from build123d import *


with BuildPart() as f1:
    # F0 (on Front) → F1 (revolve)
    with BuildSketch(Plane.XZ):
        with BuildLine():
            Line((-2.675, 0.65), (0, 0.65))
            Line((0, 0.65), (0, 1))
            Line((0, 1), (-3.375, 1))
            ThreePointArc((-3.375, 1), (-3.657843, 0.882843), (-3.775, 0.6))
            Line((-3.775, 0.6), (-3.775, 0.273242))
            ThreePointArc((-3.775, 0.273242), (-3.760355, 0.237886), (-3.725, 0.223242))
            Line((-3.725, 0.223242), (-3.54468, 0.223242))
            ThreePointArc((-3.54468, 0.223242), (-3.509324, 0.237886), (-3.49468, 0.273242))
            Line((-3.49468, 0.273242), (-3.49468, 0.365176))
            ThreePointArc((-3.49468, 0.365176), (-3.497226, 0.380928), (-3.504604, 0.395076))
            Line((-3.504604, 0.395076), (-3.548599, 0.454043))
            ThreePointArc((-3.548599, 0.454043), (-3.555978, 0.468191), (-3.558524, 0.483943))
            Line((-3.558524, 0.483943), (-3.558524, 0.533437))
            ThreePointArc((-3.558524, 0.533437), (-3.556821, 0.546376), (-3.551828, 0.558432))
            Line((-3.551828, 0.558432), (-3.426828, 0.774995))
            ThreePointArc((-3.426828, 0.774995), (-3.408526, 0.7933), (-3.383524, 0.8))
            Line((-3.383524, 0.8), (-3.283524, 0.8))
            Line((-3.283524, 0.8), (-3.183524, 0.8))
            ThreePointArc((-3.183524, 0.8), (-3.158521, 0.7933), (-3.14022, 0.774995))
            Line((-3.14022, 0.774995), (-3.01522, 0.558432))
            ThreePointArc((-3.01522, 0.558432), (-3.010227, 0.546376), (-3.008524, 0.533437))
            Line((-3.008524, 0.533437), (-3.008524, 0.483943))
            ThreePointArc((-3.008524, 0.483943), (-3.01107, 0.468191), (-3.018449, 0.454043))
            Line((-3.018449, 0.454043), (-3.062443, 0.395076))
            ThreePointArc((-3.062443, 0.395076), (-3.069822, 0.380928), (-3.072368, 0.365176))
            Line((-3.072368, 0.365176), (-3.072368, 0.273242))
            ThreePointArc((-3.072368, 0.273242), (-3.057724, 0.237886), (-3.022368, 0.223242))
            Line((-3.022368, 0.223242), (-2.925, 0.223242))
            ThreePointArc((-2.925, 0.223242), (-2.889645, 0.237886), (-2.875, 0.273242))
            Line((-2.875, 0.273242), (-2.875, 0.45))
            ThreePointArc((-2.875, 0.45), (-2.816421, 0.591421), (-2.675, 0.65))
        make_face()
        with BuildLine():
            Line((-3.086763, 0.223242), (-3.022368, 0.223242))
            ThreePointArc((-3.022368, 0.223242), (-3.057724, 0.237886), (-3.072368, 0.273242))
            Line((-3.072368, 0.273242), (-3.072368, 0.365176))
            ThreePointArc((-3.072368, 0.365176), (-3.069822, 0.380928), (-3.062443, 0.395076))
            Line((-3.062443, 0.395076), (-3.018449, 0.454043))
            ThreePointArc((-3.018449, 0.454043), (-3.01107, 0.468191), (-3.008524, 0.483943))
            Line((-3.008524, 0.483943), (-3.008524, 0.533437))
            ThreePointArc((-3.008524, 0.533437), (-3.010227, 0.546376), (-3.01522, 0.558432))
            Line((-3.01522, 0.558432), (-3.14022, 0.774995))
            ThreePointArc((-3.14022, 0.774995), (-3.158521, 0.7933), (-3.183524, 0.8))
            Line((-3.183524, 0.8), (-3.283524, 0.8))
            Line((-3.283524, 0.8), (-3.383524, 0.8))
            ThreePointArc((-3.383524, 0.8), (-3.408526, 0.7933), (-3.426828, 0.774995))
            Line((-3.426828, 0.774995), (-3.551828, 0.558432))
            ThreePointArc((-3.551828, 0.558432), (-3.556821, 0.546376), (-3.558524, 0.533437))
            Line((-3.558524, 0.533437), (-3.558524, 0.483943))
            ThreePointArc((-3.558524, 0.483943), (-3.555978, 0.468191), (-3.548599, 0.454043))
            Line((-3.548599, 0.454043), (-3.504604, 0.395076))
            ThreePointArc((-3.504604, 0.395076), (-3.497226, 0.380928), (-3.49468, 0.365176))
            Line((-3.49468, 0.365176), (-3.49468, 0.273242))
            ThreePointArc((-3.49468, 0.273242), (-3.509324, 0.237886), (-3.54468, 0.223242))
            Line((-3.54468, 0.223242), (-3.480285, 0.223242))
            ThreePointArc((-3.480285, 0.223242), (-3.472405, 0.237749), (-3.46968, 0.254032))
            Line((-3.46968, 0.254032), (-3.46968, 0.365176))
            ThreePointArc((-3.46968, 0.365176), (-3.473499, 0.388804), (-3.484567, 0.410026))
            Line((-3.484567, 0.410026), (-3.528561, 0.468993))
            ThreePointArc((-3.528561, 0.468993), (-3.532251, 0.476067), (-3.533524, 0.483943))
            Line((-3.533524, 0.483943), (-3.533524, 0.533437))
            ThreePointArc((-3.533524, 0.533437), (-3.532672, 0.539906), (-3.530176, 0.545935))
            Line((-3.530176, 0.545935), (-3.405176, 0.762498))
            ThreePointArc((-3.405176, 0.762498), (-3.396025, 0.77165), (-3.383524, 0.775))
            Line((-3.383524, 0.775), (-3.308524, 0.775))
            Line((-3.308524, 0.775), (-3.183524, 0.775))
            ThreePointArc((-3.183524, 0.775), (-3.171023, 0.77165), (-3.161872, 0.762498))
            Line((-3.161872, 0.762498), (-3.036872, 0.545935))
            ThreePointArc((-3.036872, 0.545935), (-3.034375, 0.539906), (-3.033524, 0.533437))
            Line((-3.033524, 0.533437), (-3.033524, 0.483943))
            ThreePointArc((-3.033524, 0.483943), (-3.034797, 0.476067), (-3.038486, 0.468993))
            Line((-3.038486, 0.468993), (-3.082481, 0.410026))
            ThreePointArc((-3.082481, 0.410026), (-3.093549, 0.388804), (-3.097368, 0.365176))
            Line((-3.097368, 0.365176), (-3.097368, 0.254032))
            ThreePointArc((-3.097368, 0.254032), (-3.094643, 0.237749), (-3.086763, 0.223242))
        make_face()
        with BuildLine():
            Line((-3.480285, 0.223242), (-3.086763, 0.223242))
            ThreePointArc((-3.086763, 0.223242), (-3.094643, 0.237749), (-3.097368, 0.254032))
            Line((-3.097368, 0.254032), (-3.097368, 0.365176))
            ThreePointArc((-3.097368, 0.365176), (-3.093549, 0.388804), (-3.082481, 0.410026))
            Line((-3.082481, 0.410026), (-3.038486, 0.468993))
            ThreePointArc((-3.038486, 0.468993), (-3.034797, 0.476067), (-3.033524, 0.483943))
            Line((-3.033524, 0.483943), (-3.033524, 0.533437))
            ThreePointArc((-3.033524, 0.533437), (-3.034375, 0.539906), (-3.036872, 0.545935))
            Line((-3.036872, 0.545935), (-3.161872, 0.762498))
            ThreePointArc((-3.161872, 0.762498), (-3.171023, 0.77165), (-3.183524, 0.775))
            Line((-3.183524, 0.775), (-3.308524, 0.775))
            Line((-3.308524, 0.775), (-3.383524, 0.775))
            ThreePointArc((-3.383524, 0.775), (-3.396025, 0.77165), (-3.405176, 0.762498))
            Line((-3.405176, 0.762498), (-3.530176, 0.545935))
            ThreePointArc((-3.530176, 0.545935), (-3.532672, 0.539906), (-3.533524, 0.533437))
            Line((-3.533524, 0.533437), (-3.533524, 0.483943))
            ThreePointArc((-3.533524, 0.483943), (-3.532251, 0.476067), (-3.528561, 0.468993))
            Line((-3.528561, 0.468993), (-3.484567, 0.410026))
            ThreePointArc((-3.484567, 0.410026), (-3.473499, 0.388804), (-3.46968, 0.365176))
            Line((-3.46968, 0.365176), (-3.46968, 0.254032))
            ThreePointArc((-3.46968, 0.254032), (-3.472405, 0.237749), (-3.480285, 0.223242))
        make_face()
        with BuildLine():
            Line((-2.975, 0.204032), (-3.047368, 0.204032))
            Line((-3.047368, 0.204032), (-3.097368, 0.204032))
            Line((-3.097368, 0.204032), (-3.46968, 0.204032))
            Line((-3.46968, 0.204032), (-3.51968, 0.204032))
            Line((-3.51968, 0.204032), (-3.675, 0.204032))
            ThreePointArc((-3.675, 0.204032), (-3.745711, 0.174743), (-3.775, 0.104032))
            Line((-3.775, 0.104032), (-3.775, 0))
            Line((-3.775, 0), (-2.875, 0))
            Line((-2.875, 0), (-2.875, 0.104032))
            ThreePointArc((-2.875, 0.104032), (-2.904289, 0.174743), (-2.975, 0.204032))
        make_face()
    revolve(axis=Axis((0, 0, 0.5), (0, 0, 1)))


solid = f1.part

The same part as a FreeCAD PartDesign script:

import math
import FreeCAD as App
import Part
import Sketcher

doc = App.newDocument("Part")
body = doc.addObject("PartDesign::Body", "Body")
body.AllowCompound = True

sketch1 = doc.addObject("Sketcher::SketchObject", "Sketch")
body.addObject(sketch1)
sketch1.AttachmentSupport = (doc.XZ_Plane, [""])
sketch1.MapMode = "FlatFace"
sketch1.addGeometry([
    Part.LineSegment(App.Vector(-2.675, 0.65, 0), App.Vector(0, 0.65, 0)),
    Part.LineSegment(App.Vector(0, 0.65, 0), App.Vector(0, 1, 0)),
    Part.LineSegment(App.Vector(0, 1, 0), App.Vector(-3.375, 1, 0)),
    Part.ArcOfCircle(Part.Circle(App.Vector(-3.375, 0.6, 0), App.Vector(0, 0, 1), 0.4), math.radians(90), math.radians(180)),
    Part.LineSegment(App.Vector(-3.775, 0.6, 0), App.Vector(-3.775, 0.273, 0)),
    Part.ArcOfCircle(Part.Circle(App.Vector(-3.725, 0.273, 0), App.Vector(0, 0, 1), 0.05), math.radians(180), math.radians(270)),
    Part.LineSegment(App.Vector(-3.725, 0.223, 0), App.Vector(-2.925, 0.223, 0)),
    Part.ArcOfCircle(Part.Circle(App.Vector(-2.925, 0.273, 0), App.Vector(0, 0, 1), 0.05), math.radians(-90), math.radians(0)),
    Part.LineSegment(App.Vector(-2.875, 0.273, 0), App.Vector(-2.875, 0.45, 0)),
    Part.ArcOfCircle(Part.Circle(App.Vector(-2.675, 0.45, 0), App.Vector(0, 0, 1), 0.2), math.radians(90), math.radians(180)),
    Part.LineSegment(App.Vector(-2.975, 0.204, 0), App.Vector(-3.675, 0.204, 0)),
    Part.ArcOfCircle(Part.Circle(App.Vector(-3.675, 0.104, 0), App.Vector(0, 0, 1), 0.1), math.radians(90), math.radians(180)),
    Part.LineSegment(App.Vector(-3.775, 0.104, 0), App.Vector(-3.775, 0, 0)),
    Part.LineSegment(App.Vector(-3.775, 0, 0), App.Vector(-2.875, 0, 0)),
    Part.LineSegment(App.Vector(-2.875, 0, 0), App.Vector(-2.875, 0.104, 0)),
    Part.ArcOfCircle(Part.Circle(App.Vector(-2.975, 0.104, 0), App.Vector(0, 0, 1), 0.1), math.radians(0), math.radians(90)),
], False)
sketch1.addConstraint([
    Sketcher.Constraint("Coincident", 0, 2, 1, 1),
    Sketcher.Constraint("Coincident", 1, 2, 2, 1),
    Sketcher.Constraint("Coincident", 2, 2, 3, 1),
    Sketcher.Constraint("Coincident", 3, 2, 4, 1),
    Sketcher.Constraint("Coincident", 4, 2, 5, 1),
    Sketcher.Constraint("Coincident", 5, 2, 6, 1),
    Sketcher.Constraint("Coincident", 6, 2, 7, 1),
    Sketcher.Constraint("Coincident", 7, 2, 8, 1),
    Sketcher.Constraint("Coincident", 8, 2, 9, 2),
    Sketcher.Constraint("Coincident", 9, 1, 0, 1),
    Sketcher.Constraint("Coincident", 10, 2, 11, 1),
    Sketcher.Constraint("Coincident", 11, 2, 12, 1),
    Sketcher.Constraint("Coincident", 12, 2, 13, 1),
    Sketcher.Constraint("Coincident", 13, 2, 14, 1),
    Sketcher.Constraint("Coincident", 14, 2, 15, 1),
    Sketcher.Constraint("Coincident", 15, 2, 10, 1),
    Sketcher.Constraint("Horizontal", 0),
    Sketcher.Constraint("Vertical", 1),
    Sketcher.Constraint("Horizontal", 2),
    Sketcher.Constraint("Vertical", 4),
    Sketcher.Constraint("Horizontal", 6),
    Sketcher.Constraint("Vertical", 8),
    Sketcher.Constraint("Horizontal", 10),
    Sketcher.Constraint("Vertical", 12),
    Sketcher.Constraint("Horizontal", 13),
    Sketcher.Constraint("Vertical", 14),
    Sketcher.Constraint("Equal", 5, 7),
    Sketcher.Constraint("Equal", 11, 15),
    Sketcher.Constraint("PointOnObject", 0, 2, -2),
    Sketcher.Constraint("PointOnObject", 12, 2, -1),
    Sketcher.Constraint("Horizontal", 7, 3, 4, 2),
    Sketcher.Constraint("Horizontal", 4, 2, 7, 2),
    Sketcher.Constraint("Horizontal", 9, 3, 8, 2),
    Sketcher.Constraint("Horizontal", 15, 3, 11, 2),
    Sketcher.Constraint("Horizontal", 11, 2, 14, 2),
    Sketcher.Constraint("Vertical", 3, 3, 2, 2),
    Sketcher.Constraint("Vertical", 7, 3, 6, 2),
    Sketcher.Constraint("Vertical", 11, 3, 10, 2),
    Sketcher.Constraint("Vertical", 4, 2, 11, 2),
    Sketcher.Constraint("Vertical", 8, 2, 13, 2),
    Sketcher.Constraint("Radius", 3, 0.399999),
    Sketcher.Constraint("Radius", 9, 0.200001),
    Sketcher.Constraint("Radius", 11, 0.099999),
    Sketcher.Constraint("Radius", 5, 0.049999),
    Sketcher.Constraint("DistanceX", 6, 1, 6, 2, 0.8),
    Sketcher.Constraint("DistanceX", 10, 2, 10, 1, 0.7),
    Sketcher.Constraint("DistanceX", 13, 1, 13, 2, 0.9),
    Sketcher.Constraint("DistanceY", -1, 1, 1, 2, 1.0),
    Sketcher.Constraint("DistanceY", 1, 1, 1, 2, 0.35),
    Sketcher.Constraint("DistanceY", -1, 1, 3, 2, 0.6),
    Sketcher.Constraint("DistanceX", 8, 2, 9, 1, 0.2),
    Sketcher.Constraint("DistanceX", 0, 1, 0, 2, 2.675),
    Sketcher.Constraint("DistanceY", 8, 1, 8, 2, 0.176758),
    Sketcher.Constraint("DistanceY", 12, 2, 12, 1, 0.104032),
])
revolution = doc.addObject("PartDesign::Revolution", "Revolution")
body.addObject(revolution)
revolution.Profile = sketch1
revolution.ReferenceAxis = (sketch1, ["V_Axis"])
revolution.Angle = 360

doc.recompute()
